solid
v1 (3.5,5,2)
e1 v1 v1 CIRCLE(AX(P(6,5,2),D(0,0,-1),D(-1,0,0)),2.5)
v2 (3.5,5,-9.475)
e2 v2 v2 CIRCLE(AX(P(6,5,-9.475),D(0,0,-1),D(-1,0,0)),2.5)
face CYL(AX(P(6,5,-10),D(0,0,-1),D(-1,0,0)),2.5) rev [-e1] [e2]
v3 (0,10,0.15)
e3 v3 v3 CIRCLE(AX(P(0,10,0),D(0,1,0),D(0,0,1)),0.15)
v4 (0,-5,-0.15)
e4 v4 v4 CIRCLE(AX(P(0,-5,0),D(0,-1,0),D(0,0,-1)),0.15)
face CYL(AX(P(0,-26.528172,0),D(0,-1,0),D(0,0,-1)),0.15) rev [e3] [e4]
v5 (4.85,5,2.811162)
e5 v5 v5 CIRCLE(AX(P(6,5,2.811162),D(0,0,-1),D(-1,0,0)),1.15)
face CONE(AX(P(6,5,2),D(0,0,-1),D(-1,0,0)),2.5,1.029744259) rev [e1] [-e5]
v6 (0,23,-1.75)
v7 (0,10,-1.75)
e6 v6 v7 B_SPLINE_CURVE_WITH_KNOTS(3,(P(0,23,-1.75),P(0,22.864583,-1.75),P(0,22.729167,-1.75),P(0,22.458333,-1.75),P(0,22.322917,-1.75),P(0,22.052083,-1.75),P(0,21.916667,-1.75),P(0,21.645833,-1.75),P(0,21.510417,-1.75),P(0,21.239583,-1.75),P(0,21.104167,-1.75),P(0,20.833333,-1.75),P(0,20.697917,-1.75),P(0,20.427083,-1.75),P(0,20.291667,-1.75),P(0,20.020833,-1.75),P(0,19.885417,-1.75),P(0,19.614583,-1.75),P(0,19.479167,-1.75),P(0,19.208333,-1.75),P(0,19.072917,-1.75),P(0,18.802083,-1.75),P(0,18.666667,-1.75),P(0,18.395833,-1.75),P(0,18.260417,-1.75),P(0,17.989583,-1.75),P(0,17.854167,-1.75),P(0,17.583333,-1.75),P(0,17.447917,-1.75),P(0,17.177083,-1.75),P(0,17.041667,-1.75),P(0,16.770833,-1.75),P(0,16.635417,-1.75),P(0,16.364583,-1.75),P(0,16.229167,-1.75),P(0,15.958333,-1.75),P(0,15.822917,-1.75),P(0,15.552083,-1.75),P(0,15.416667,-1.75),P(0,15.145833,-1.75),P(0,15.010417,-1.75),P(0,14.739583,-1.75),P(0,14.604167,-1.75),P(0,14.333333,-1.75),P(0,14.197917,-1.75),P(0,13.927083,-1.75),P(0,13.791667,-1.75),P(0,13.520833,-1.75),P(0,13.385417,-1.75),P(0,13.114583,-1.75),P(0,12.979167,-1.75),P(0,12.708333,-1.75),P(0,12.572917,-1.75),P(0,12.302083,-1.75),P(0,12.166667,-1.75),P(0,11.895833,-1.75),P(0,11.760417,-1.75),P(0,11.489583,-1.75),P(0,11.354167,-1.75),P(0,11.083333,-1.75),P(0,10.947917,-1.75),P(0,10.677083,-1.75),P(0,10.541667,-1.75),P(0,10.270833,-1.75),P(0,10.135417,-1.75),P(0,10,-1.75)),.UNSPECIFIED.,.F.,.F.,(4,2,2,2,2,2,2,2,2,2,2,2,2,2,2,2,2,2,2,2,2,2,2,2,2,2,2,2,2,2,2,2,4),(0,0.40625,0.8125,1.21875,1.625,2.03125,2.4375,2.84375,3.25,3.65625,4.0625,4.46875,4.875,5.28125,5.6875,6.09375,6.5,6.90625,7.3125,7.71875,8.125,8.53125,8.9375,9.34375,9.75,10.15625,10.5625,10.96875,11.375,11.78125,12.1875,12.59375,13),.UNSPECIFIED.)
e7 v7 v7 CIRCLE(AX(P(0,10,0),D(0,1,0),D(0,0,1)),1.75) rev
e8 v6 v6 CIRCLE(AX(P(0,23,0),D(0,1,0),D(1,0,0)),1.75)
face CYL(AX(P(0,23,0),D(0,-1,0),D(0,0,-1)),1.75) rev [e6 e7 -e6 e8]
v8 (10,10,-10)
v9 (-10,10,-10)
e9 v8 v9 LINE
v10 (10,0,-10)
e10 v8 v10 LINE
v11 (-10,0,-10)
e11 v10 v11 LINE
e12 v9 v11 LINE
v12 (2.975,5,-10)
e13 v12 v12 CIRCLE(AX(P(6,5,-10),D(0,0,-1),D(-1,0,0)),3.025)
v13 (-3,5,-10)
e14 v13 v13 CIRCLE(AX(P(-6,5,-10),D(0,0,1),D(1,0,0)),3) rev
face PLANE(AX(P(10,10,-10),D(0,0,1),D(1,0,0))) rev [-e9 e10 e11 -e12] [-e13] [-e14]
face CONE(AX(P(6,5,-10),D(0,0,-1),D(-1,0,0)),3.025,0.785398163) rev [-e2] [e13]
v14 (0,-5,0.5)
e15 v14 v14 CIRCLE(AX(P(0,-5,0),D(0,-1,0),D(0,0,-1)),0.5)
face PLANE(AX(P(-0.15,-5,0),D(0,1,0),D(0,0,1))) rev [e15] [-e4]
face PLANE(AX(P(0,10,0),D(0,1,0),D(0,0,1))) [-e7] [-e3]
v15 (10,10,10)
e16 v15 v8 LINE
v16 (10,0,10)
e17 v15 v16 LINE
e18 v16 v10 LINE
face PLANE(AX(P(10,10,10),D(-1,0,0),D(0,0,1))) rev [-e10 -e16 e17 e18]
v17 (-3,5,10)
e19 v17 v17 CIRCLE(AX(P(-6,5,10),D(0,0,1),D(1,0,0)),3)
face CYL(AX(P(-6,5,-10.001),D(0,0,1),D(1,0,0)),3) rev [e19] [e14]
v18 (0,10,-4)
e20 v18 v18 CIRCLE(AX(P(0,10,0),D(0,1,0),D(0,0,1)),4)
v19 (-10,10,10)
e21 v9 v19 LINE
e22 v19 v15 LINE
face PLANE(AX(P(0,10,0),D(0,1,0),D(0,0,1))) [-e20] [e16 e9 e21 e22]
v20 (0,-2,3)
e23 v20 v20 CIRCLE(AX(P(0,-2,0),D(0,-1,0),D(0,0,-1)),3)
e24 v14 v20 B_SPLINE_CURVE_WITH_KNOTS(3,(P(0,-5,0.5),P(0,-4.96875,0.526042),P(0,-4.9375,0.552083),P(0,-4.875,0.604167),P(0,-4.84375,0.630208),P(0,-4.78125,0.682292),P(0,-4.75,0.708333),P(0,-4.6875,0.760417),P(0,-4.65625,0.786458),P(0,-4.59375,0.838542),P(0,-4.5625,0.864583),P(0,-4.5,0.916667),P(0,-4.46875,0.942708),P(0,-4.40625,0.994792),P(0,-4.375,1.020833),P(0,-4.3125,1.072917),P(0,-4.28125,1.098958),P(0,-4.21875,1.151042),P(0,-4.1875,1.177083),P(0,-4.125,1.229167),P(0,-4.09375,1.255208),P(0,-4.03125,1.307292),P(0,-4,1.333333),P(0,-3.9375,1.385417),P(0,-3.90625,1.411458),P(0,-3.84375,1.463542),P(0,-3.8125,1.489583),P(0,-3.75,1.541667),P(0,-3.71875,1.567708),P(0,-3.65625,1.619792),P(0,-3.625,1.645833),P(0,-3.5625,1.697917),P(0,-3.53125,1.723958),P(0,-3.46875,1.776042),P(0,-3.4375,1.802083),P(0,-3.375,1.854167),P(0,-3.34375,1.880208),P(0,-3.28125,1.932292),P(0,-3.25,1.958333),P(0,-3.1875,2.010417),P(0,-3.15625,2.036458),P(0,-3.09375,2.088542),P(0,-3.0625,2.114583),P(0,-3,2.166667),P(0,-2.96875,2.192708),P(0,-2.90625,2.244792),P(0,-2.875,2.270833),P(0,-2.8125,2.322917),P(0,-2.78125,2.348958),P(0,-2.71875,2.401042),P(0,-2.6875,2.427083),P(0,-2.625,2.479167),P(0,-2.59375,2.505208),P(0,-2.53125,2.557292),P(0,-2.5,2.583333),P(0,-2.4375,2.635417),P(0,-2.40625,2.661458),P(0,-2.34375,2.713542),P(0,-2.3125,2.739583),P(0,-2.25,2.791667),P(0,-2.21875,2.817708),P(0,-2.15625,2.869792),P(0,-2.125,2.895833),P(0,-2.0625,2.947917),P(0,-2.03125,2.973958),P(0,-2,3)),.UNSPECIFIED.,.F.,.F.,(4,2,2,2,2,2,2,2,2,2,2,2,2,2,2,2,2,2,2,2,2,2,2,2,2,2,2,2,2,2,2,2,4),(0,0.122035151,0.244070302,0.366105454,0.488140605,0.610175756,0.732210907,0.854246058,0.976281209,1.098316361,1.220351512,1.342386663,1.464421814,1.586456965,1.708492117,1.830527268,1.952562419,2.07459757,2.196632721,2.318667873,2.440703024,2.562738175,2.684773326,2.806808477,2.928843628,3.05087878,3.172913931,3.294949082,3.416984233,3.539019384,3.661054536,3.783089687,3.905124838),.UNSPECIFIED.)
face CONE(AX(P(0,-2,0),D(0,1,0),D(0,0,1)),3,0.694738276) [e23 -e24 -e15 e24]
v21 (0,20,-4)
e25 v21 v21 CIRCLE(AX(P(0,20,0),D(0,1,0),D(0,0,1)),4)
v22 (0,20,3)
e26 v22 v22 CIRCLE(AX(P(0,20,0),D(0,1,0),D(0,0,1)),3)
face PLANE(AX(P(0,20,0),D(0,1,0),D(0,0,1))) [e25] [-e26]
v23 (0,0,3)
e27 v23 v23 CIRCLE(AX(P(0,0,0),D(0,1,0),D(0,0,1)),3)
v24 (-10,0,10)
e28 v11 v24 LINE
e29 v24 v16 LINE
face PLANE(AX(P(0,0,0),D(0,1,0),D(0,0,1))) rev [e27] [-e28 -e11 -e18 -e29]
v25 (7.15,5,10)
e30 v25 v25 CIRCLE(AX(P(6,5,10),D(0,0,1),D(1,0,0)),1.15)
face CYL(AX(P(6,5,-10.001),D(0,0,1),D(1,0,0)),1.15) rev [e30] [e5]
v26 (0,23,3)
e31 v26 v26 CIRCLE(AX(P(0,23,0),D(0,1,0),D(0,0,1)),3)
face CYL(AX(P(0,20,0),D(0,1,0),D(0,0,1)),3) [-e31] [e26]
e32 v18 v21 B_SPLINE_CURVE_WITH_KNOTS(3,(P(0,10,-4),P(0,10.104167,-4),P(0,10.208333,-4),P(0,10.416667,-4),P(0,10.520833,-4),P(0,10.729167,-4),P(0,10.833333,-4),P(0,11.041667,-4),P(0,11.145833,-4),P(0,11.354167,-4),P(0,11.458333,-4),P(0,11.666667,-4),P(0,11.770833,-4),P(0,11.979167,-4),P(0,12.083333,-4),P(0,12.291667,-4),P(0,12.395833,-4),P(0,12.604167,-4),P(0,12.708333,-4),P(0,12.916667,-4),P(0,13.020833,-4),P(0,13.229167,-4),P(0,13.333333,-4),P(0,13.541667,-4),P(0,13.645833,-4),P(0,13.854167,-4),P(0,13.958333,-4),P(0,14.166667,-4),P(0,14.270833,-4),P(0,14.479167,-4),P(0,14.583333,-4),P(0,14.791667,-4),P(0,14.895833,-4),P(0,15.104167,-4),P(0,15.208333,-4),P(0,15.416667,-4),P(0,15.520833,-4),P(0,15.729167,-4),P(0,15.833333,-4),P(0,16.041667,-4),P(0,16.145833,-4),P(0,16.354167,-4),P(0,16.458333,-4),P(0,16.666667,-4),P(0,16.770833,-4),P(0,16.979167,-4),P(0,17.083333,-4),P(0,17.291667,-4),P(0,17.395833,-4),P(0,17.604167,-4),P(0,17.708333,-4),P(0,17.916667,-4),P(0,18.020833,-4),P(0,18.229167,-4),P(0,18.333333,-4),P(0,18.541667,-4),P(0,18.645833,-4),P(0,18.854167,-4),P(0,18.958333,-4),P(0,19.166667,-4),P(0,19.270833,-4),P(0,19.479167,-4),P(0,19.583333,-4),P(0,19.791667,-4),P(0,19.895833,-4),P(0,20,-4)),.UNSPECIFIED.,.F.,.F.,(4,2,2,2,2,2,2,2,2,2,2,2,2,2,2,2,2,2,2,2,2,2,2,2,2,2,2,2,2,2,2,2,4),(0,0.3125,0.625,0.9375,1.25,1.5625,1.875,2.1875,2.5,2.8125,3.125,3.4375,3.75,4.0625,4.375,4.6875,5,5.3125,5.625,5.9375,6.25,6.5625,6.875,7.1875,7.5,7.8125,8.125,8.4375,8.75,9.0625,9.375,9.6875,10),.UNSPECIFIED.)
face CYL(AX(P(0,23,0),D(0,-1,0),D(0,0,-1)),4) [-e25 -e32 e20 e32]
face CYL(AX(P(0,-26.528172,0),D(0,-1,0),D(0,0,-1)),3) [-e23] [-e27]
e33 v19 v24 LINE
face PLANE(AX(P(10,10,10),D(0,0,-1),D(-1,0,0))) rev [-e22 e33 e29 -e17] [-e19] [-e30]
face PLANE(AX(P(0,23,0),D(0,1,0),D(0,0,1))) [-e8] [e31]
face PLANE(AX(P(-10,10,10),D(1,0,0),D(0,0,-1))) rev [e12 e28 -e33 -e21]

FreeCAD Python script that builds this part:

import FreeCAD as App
import Part
import Sketcher

doc = App.newDocument("Part")
body = doc.addObject("PartDesign::Body", "Body")

sketch1 = body.newObject("Sketcher::SketchObject", "Sketch")
sketch1.AttachmentSupport = (doc.getObject("XY_Plane"), [""])
sketch1.MapMode = "FlatFace"
sketch1.addGeometry([
    Part.LineSegment(App.Vector(-0.15, -5, 0), App.Vector(-0.15, 0, 0)),
    Part.LineSegment(App.Vector(-0.15, 0, 0), App.Vector(-3, 0, 0)),
    Part.LineSegment(App.Vector(-3, 0, 0), App.Vector(-3, -2, 0)),
    Part.LineSegment(App.Vector(-3, -2, 0), App.Vector(-0.5, -5, 0)),
    Part.LineSegment(App.Vector(-0.5, -5, 0), App.Vector(-0.15, -5, 0)),
], False)
sketch1.addConstraint([
    Sketcher.Constraint("Coincident", 0, 2, 1, 1),
    Sketcher.Constraint("Coincident", 1, 2, 2, 1),
    Sketcher.Constraint("Coincident", 2, 2, 3, 1),
    Sketcher.Constraint("Coincident", 3, 2, 4, 1),
    Sketcher.Constraint("Coincident", 4, 2, 0, 1),
    Sketcher.Constraint("Vertical", 0),
    Sketcher.Constraint("Horizontal", 1),
    Sketcher.Constraint("Vertical", 2),
    Sketcher.Constraint("Horizontal", 4),
    Sketcher.Constraint("PointOnObject", 0, 2, -1),
    Sketcher.Constraint("DistanceY", 0, 1, 0, 2, 5.0),
    Sketcher.Constraint("DistanceY", 2, 2, 2, 1, 2.0),
    Sketcher.Constraint("DistanceX", 1, 2, -1, 1, 3.0),
    Sketcher.Constraint("DistanceX", 1, 2, 1, 1, 2.85),
    Sketcher.Constraint("DistanceX", 4, 1, 4, 2, 0.35),
])
revolution = body.newObject("PartDesign::Revolution", "Revolution")
revolution.Profile = sketch1
revolution.ReferenceAxis = (sketch1, ["V_Axis"])
revolution.Angle = 360

sketch2 = body.newObject("Sketcher::SketchObject", "Sketch001")
sketch2.AttachmentSupport = (doc.getObject("XZ_Plane"), [""])
sketch2.MapMode = "FlatFace"
sketch2.addGeometry([
    Part.LineSegment(App.Vector(-10, -10, 0), App.Vector(-10, 10, 0)),
    Part.LineSegment(App.Vector(-10, 10, 0), App.Vector(10, 10, 0)),
    Part.LineSegment(App.Vector(10, 10, 0), App.Vector(10, -10, 0)),
    Part.LineSegment(App.Vector(10, -10, 0), App.Vector(-10, -10, 0)),
    Part.Circle(App.Vector(0, 0, 0), App.Vector(0, 0, 1), 0.15),
], False)
sketch2.addConstraint([
    Sketcher.Constraint("Coincident", 0, 2, 1, 1),
    Sketcher.Constraint("Coincident", 1, 2, 2, 1),
    Sketcher.Constraint("Coincident", 2, 2, 3, 1),
    Sketcher.Constraint("Coincident", 3, 2, 0, 1),
    Sketcher.Constraint("Vertical", 0),
    Sketcher.Constraint("Horizontal", 1),
    Sketcher.Constraint("Vertical", 2),
    Sketcher.Constraint("Horizontal", 3),
    Sketcher.Constraint("Coincident", 4, 3, -1, 1),
    Sketcher.Constraint("Symmetric", 0, 2, 2, 2, -1, 1),
    Sketcher.Constraint("Equal", 3, 0),
    Sketcher.Constraint("Diameter", 4, 0.3),
    Sketcher.Constraint("DistanceX", 1, 1, 1, 2, 20.0),
])
pad1 = body.newObject("PartDesign::Pad", "Pad")
pad1.Profile = sketch2
pad1.Length = 10
pad1.Reversed = True

sketch3 = body.newObject("Sketcher::SketchObject", "Sketch002")
sketch3.AttachmentSupport = (doc.getObject("XZ_Plane"), [""])
sketch3.MapMode = "FlatFace"
sketch3.AttachmentOffset = App.Placement(App.Vector(0, 0, -10), App.Rotation())
sketch3.addGeometry([
    Part.Circle(App.Vector(0, 0, 0), App.Vector(0, 0, 1), 4),
    Part.Circle(App.Vector(0, 0, 0), App.Vector(0, 0, 1), 1.8),
], False)
sketch3.addConstraint([
    Sketcher.Constraint("Coincident", 0, 3, -1, 1),
    Sketcher.Constraint("Coincident", 1, 3, -1, 1),
    Sketcher.Constraint("Diameter", 0, 8.0),
    Sketcher.Constraint("Diameter", 1, 3.5),
])
pad2 = body.newObject("PartDesign::Pad", "Pad001")
pad2.Profile = sketch3
pad2.Length = 13
pad2.Reversed = True

sketch4 = body.newObject("Sketcher::SketchObject", "Sketch003")
sketch4.AttachmentSupport = (doc.getObject("XY_Plane"), [""])
sketch4.MapMode = "FlatFace"
sketch4.AttachmentOffset = App.Placement(App.Vector(0, 0, 10), App.Rotation())
sketch4.addGeometry(Part.Circle(App.Vector(-6, 5, 0), App.Vector(0, 0, 1), 3), False)
sketch4.addConstraint([
    Sketcher.Constraint("Diameter", 0, 6.0),
    Sketcher.Constraint("DistanceX", 0, 3, -1, 1, 6.0),
    Sketcher.Constraint("DistanceY", -1, 1, 0, 3, 5.0),
])
pocket1 = body.newObject("PartDesign::Pocket", "Pocket")
pocket1.Profile = sketch4
pocket1.Type = "UpToFirst"

sketch5 = body.newObject("Sketcher::SketchObject", "Sketch004")
sketch5.AttachmentSupport = (doc.getObject("XY_Plane"), [""])
sketch5.MapMode = "FlatFace"
sketch5.AttachmentOffset = App.Placement(App.Vector(0, 0, 10), App.Rotation())
sketch5.addGeometry(Part.Circle(App.Vector(6, 5, 0), App.Vector(0, 0, 1), 1.1), False)
sketch5.addConstraint([
    Sketcher.Constraint("Diameter", 0, 2.3),
    Sketcher.Constraint("DistanceX", -1, 1, 0, 3, 6.0),
    Sketcher.Constraint("DistanceY", -1, 1, 0, 3, 5.0),
])
pocket2 = body.newObject("PartDesign::Pocket", "Pocket001")
pocket2.Profile = sketch5
pocket2.Type = "UpToFirst"

sketch6 = body.newObject("Sketcher::SketchObject", "Sketch005")
sketch6.AttachmentSupport = (doc.getObject("XY_Plane"), [""])
sketch6.MapMode = "FlatFace"
sketch6.AttachmentOffset = App.Placement(App.Vector(0, 0, -10), App.Rotation())
sketch6.addGeometry(Part.Circle(App.Vector(6, 5, 0), App.Vector(0, 0, 1), 2.5), False)
sketch6.addConstraint([
    Sketcher.Constraint("Diameter", 0, 5.0),
    Sketcher.Constraint("DistanceX", -1, 1, 0, 3, 6.0),
    Sketcher.Constraint("DistanceY", -1, 1, 0, 3, 5.0),
])
doc.recompute()
hole = body.newObject("PartDesign::Hole", "Hole")
hole.Profile = sketch6
hole.ThreadType = "None"
hole.Diameter = 5
hole.DepthType = "Dimension"
hole.Depth = 12
hole.DrillPoint = "Angled"
hole.DrillPointAngle = 118
hole.HoleCutType = "Countersink"
hole.HoleCutDiameter = 6.05
hole.HoleCutCountersinkAngle = 90
hole.Reversed = True

sketch7 = body.newObject("Sketcher::SketchObject", "Sketch006")
sketch7.AttachmentSupport = (doc.getObject("XZ_Plane"), [""])
sketch7.MapMode = "FlatFace"
sketch7.AttachmentOffset = App.Placement(App.Vector(0, 0, -23), App.Rotation())
sketch7.addGeometry([
    Part.Circle(App.Vector(0, 0, 0), App.Vector(0, 0, 1), 13),
    Part.Circle(App.Vector(0, 0, 0), App.Vector(0, 0, 1), 3),
], False)
sketch7.addConstraint([
    Sketcher.Constraint("Coincident", 0, 3, -1, 1),
    Sketcher.Constraint("Coincident", 1, 3, -1, 1),
    Sketcher.Constraint("Diameter", 0, 26.0),
    Sketcher.Constraint("Diameter", 1, 6.0),
])
pocket3 = body.newObject("PartDesign::Pocket", "Pocket002")
pocket3.Profile = sketch7
pocket3.Length = 3
pocket3.Reversed = True

doc.recompute()
